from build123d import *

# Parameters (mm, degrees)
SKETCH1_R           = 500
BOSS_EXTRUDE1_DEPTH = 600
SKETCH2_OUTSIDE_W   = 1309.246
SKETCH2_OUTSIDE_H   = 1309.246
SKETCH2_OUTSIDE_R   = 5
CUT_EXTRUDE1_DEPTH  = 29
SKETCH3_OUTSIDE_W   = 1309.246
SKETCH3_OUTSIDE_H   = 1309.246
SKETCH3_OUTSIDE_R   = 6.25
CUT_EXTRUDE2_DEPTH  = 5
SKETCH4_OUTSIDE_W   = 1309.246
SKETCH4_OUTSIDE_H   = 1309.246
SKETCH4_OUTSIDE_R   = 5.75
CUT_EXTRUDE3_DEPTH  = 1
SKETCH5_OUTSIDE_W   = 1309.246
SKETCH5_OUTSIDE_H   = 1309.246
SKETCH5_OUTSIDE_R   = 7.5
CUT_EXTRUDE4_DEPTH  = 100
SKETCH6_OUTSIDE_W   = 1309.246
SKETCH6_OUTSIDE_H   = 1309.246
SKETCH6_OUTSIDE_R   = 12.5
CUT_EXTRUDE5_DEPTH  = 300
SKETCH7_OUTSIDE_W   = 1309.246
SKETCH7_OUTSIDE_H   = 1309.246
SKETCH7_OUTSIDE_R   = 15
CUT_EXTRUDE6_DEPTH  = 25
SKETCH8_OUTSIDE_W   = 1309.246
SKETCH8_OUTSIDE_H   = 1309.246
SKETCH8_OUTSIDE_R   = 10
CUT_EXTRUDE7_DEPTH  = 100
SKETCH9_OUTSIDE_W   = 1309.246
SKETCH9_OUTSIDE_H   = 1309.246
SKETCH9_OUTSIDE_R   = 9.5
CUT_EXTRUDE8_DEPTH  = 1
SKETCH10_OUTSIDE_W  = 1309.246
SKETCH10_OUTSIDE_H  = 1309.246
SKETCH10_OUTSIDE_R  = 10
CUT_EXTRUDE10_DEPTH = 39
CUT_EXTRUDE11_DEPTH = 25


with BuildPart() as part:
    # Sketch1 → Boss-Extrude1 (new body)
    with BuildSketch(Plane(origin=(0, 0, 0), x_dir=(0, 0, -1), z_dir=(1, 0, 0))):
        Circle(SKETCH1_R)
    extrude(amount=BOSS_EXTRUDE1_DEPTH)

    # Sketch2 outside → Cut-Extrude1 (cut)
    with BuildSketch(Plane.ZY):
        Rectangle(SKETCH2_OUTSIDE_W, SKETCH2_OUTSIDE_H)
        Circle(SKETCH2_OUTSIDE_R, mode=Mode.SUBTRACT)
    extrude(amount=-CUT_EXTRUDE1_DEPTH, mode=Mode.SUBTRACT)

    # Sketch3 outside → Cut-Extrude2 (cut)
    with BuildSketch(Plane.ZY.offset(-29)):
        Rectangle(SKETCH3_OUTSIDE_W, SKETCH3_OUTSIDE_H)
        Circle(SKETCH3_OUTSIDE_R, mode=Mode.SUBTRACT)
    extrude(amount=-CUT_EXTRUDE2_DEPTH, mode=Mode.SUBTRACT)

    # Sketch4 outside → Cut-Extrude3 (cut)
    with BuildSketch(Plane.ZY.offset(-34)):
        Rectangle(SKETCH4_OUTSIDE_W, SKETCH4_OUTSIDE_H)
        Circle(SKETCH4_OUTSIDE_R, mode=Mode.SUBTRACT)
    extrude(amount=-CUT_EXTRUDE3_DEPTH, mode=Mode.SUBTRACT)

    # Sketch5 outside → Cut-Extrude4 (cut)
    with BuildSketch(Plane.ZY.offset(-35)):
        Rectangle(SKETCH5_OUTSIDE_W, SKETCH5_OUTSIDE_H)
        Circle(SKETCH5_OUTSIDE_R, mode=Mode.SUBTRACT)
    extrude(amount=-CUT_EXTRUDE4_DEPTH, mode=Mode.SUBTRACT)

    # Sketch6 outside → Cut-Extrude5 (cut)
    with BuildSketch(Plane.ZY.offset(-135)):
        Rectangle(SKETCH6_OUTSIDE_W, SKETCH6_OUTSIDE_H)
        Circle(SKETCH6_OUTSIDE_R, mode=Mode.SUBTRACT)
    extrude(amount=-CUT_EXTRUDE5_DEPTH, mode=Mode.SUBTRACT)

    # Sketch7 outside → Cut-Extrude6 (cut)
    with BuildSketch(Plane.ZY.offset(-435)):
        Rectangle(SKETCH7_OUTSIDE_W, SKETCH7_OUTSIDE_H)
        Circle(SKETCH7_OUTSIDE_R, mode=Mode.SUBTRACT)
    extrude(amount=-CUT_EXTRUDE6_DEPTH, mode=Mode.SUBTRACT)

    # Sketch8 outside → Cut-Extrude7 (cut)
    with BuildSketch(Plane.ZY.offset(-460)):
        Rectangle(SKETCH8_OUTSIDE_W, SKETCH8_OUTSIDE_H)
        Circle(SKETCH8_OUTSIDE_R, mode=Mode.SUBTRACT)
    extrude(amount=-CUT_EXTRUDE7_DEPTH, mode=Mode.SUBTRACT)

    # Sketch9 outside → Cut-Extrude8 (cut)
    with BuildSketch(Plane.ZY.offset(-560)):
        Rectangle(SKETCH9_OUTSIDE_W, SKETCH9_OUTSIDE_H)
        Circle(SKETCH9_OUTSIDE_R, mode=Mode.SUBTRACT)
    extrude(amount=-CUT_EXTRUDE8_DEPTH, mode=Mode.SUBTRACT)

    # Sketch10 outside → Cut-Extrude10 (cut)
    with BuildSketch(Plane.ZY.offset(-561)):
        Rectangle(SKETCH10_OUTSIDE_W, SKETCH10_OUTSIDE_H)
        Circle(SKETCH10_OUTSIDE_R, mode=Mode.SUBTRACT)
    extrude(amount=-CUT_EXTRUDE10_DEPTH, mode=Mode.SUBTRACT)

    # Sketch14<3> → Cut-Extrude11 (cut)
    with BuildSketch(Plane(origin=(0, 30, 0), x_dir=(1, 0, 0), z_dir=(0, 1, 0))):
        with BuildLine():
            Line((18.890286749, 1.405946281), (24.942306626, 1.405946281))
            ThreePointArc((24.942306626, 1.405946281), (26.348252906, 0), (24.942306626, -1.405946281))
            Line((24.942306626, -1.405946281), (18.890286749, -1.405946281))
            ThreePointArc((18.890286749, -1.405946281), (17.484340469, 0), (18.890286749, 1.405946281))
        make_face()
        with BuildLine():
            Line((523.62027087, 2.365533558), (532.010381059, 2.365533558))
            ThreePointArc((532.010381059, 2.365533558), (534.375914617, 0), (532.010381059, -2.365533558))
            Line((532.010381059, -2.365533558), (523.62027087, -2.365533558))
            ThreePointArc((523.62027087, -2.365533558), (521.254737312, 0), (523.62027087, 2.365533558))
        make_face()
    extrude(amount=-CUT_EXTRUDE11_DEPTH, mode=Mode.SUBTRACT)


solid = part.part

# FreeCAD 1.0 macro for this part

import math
import FreeCAD as App
import Part
import Sketcher
from FreeCAD import Vector
Q = App.Units.Quantity

doc = App.newDocument("Part")
params = doc.addObject("Spreadsheet::Sheet", "Params")
for row, (alias, value) in enumerate([
    ("sketch1_diameter", "1000 mm"),
    ("pad1_length", "600 mm"),
    ("sketch2_diameter", "10 mm"),
    ("pocket1_length", "29 mm"),
    ("sketch3_diameter", "12.5 mm"),
    ("pocket2_length", "5 mm"),
    ("sketch4_diameter", "11.5 mm"),
    ("pocket3_length", "1 mm"),
    ("sketch5_diameter", "15 mm"),
    ("pocket4_length", "100 mm"),
    ("sketch6_diameter", "25 mm"),
    ("pocket5_length", "300 mm"),
    ("sketch7_diameter", "30 mm"),
    ("pocket6_length", "25 mm"),
    ("sketch8_diameter", "20 mm"),
    ("pocket7_length", "100 mm"),
    ("sketch9_diameter", "19 mm"),
    ("pocket8_length", "1 mm"),
    ("sketch10_diameter", "20 mm"),
    ("pocket9_length", "39 mm"),
    ("pocket10_length", "25 mm"),
], start=1):
    params.set(f"A{row}", alias)
    params.set(f"B{row}", "=" + value)
    params.setAlias(f"B{row}", alias)

body = doc.addObject("PartDesign::Body", "Body")

sketch1 = doc.addObject("Sketcher::SketchObject", "Sketch")
body.addObject(sketch1)
sketch1.AttachmentSupport = (doc.YZ_Plane, [""])
sketch1.MapMode = "FlatFace"
sketch1.addGeometry(Part.Circle(Vector(0, 0, 0), Vector(0, 0, 1), 500), False)
sketch1.addConstraint([
    Sketcher.Constraint("Coincident", 0, 3, -1, 1),
    Sketcher.Constraint("Diameter", 0, Q("1000 mm")),
])
sketch1.setExpression("Constraints[1]", "Params.sketch1_diameter")
pad1 = doc.addObject("PartDesign::Pad", "Pad")
body.addObject(pad1)
pad1.Profile = sketch1
pad1.setExpression("Length", "Params.pad1_length")

sketch2 = doc.addObject("Sketcher::SketchObject", "Sketch001")
body.addObject(sketch2)
sketch2.AttachmentSupport = (doc.YZ_Plane, [""])
sketch2.MapMode = "FlatFace"
sketch2.addGeometry([
    Part.LineSegment(Vector(655, -655, 0), Vector(-655, -655, 0)),
    Part.LineSegment(Vector(-655, -655, 0), Vector(-655, 655, 0)),
    Part.LineSegment(Vector(-655, 655, 0), Vector(655, 655, 0)),
    Part.LineSegment(Vector(655, 655, 0), Vector(655, -655, 0)),
    Part.Circle(Vector(0, 0, 0), Vector(0, 0, 1), 5),
], False)
sketch2.addConstraint([
    Sketcher.Constraint("Coincident", 0, 2, 1, 1),
    Sketcher.Constraint("Coincident", 1, 2, 2, 1),
    Sketcher.Constraint("Coincident", 2, 2, 3, 1),
    Sketcher.Constraint("Coincident", 3, 2, 0, 1),
    Sketcher.Constraint("Horizontal", 0),
    Sketcher.Constraint("Vertical", 1),
    Sketcher.Constraint("Horizontal", 2),
    Sketcher.Constraint("Vertical", 3),
    Sketcher.Constraint("Coincident", 4, 3, -1, 1),
    Sketcher.Constraint("Symmetric", 0, 2, 2, 2, -1, 1),
    Sketcher.Constraint("Equal", 2, 1),
    Sketcher.Constraint("Diameter", 4, Q("10 mm")),
    Sketcher.Constraint("DistanceX", 0, 2, 0, 1, Q("1309.246 mm")),
])
sketch2.setExpression("Constraints[11]", "Params.sketch2_diameter")
pocket1 = doc.addObject("PartDesign::Pocket", "Pocket")
body.addObject(pocket1)
pocket1.Profile = sketch2
pocket1.setExpression("Length", "Params.pocket1_length")
pocket1.Reversed = True

sketch3 = doc.addObject("Sketcher::SketchObject", "Sketch002")
body.addObject(sketch3)
sketch3.AttachmentSupport = (doc.YZ_Plane, [""])
sketch3.MapMode = "FlatFace"
sketch3.AttachmentOffset = App.Placement(Vector(0, 0, 29), App.Rotation())
sketch3.addGeometry([
    Part.LineSegment(Vector(655, -655, 0), Vector(-655, -655, 0)),
    Part.LineSegment(Vector(-655, -655, 0), Vector(-655, 655, 0)),
    Part.LineSegment(Vector(-655, 655, 0), Vector(655, 655, 0)),
    Part.LineSegment(Vector(655, 655, 0), Vector(655, -655, 0)),
    Part.Circle(Vector(0, 0, 0), Vector(0, 0, 1), 6),
], False)
sketch3.addConstraint([
    Sketcher.Constraint("Coincident", 0, 2, 1, 1),
    Sketcher.Constraint("Coincident", 1, 2, 2, 1),
    Sketcher.Constraint("Coincident", 2, 2, 3, 1),
    Sketcher.Constraint("Coincident", 3, 2, 0, 1),
    Sketcher.Constraint("Horizontal", 0),
    Sketcher.Constraint("Vertical", 1),
    Sketcher.Constraint("Horizontal", 2),
    Sketcher.Constraint("Vertical", 3),
    Sketcher.Constraint("Coincident", 4, 3, -1, 1),
    Sketcher.Constraint("Symmetric", 0, 2, 2, 2, -1, 1),
    Sketcher.Constraint("Equal", 2, 1),
    Sketcher.Constraint("Diameter", 4, Q("12.5 mm")),
    Sketcher.Constraint("DistanceX", 0, 2, 0, 1, Q("1309.246 mm")),
])
sketch3.setExpression("Constraints[11]", "Params.sketch3_diameter")
pocket2 = doc.addObject("PartDesign::Pocket", "Pocket001")
body.addObject(pocket2)
pocket2.Profile = sketch3
pocket2.setExpression("Length", "Params.pocket2_length")
pocket2.Reversed = True

sketch4 = doc.addObject("Sketcher::SketchObject", "Sketch003")
body.addObject(sketch4)
sketch4.AttachmentSupport = (doc.YZ_Plane, [""])
sketch4.MapMode = "FlatFace"
sketch4.AttachmentOffset = App.Placement(Vector(0, 0, 34), App.Rotation())
sketch4.addGeometry([
    Part.LineSegment(Vector(655, -655, 0), Vector(-655, -655, 0)),
    Part.LineSegment(Vector(-655, -655, 0), Vector(-655, 655, 0)),
    Part.LineSegment(Vector(-655, 655, 0), Vector(655, 655, 0)),
    Part.LineSegment(Vector(655, 655, 0), Vector(655, -655, 0)),
    Part.Circle(Vector(0, 0, 0), Vector(0, 0, 1), 6),
], False)
sketch4.addConstraint([
    Sketcher.Constraint("Coincident", 0, 2, 1, 1),
    Sketcher.Constraint("Coincident", 1, 2, 2, 1),
    Sketcher.Constraint("Coincident", 2, 2, 3, 1),
    Sketcher.Constraint("Coincident", 3, 2, 0, 1),
    Sketcher.Constraint("Horizontal", 0),
    Sketcher.Constraint("Vertical", 1),
    Sketcher.Constraint("Horizontal", 2),
    Sketcher.Constraint("Vertical", 3),
    Sketcher.Constraint("Coincident", 4, 3, -1, 1),
    Sketcher.Constraint("Symmetric", 0, 2, 2, 2, -1, 1),
    Sketcher.Constraint("Equal", 2, 1),
    Sketcher.Constraint("Diameter", 4, Q("11.5 mm")),
    Sketcher.Constraint("DistanceX", 0, 2, 0, 1, Q("1309.246 mm")),
])
sketch4.setExpression("Constraints[11]", "Params.sketch4_diameter")
pocket3 = doc.addObject("PartDesign::Pocket", "Pocket002")
body.addObject(pocket3)
pocket3.Profile = sketch4
pocket3.setExpression("Length", "Params.pocket3_length")
pocket3.Reversed = True

sketch5 = doc.addObject("Sketcher::SketchObject", "Sketch004")
body.addObject(sketch5)
sketch5.AttachmentSupport = (doc.YZ_Plane, [""])
sketch5.MapMode = "FlatFace"
sketch5.AttachmentOffset = App.Placement(Vector(0, 0, 35), App.Rotation())
sketch5.addGeometry([
    Part.LineSegment(Vector(655, -655, 0), Vector(-655, -655, 0)),
    Part.LineSegment(Vector(-655, -655, 0), Vector(-655, 655, 0)),
    Part.LineSegment(Vector(-655, 655, 0), Vector(655, 655, 0)),
    Part.LineSegment(Vector(655, 655, 0), Vector(655, -655, 0)),
    Part.Circle(Vector(0, 0, 0), Vector(0, 0, 1), 8),
], False)
sketch5.addConstraint([
    Sketcher.Constraint("Coincident", 0, 2, 1, 1),
    Sketcher.Constraint("Coincident", 1, 2, 2, 1),
    Sketcher.Constraint("Coincident", 2, 2, 3, 1),
    Sketcher.Constraint("Coincident", 3, 2, 0, 1),
    Sketcher.Constraint("Horizontal", 0),
    Sketcher.Constraint("Vertical", 1),
    Sketcher.Constraint("Horizontal", 2),
    Sketcher.Constraint("Vertical", 3),
    Sketcher.Constraint("Coincident", 4, 3, -1, 1),
    Sketcher.Constraint("Symmetric", 0, 2, 2, 2, -1, 1),
    Sketcher.Constraint("Equal", 2, 1),
    Sketcher.Constraint("Diameter", 4, Q("15 mm")),
    Sketcher.Constraint("DistanceX", 0, 2, 0, 1, Q("1309.246 mm")),
])
sketch5.setExpression("Constraints[11]", "Params.sketch5_diameter")
pocket4 = doc.addObject("PartDesign::Pocket", "Pocket003")
body.addObject(pocket4)
pocket4.Profile = sketch5
pocket4.setExpression("Length", "Params.pocket4_length")
pocket4.Reversed = True

sketch6 = doc.addObject("Sketcher::SketchObject", "Sketch005")
body.addObject(sketch6)
sketch6.AttachmentSupport = (doc.YZ_Plane, [""])
sketch6.MapMode = "FlatFace"
sketch6.AttachmentOffset = App.Placement(Vector(0, 0, 135), App.Rotation())
sketch6.addGeometry([
    Part.LineSegment(Vector(655, -655, 0), Vector(-655, -655, 0)),
    Part.LineSegment(Vector(-655, -655, 0), Vector(-655, 655, 0)),
    Part.LineSegment(Vector(-655, 655, 0), Vector(655, 655, 0)),
    Part.LineSegment(Vector(655, 655, 0), Vector(655, -655, 0)),
    Part.Circle(Vector(0, 0, 0), Vector(0, 0, 1), 12),
], False)
sketch6.addConstraint([
    Sketcher.Constraint("Coincident", 0, 2, 1, 1),
    Sketcher.Constraint("Coincident", 1, 2, 2, 1),
    Sketcher.Constraint("Coincident", 2, 2, 3, 1),
    Sketcher.Constraint("Coincident", 3, 2, 0, 1),
    Sketcher.Constraint("Horizontal", 0),
    Sketcher.Constraint("Vertical", 1),
    Sketcher.Constraint("Horizontal", 2),
    Sketcher.Constraint("Vertical", 3),
    Sketcher.Constraint("Coincident", 4, 3, -1, 1),
    Sketcher.Constraint("Symmetric", 0, 2, 2, 2, -1, 1),
    Sketcher.Constraint("Equal", 2, 1),
    Sketcher.Constraint("Diameter", 4, Q("25 mm")),
    Sketcher.Constraint("DistanceX", 0, 2, 0, 1, Q("1309.246 mm")),
])
sketch6.setExpression("Constraints[11]", "Params.sketch6_diameter")
pocket5 = doc.addObject("PartDesign::Pocket", "Pocket004")
body.addObject(pocket5)
pocket5.Profile = sketch6
pocket5.setExpression("Length", "Params.pocket5_length")
pocket5.Reversed = True

sketch7 = doc.addObject("Sketcher::SketchObject", "Sketch006")
body.addObject(sketch7)
sketch7.AttachmentSupport = (doc.YZ_Plane, [""])
sketch7.MapMode = "FlatFace"
sketch7.AttachmentOffset = App.Placement(Vector(0, 0, 435), App.Rotation())
sketch7.addGeometry([
    Part.LineSegment(Vector(655, -655, 0), Vector(-655, -655, 0)),
    Part.LineSegment(Vector(-655, -655, 0), Vector(-655, 655, 0)),
    Part.LineSegment(Vector(-655, 655, 0), Vector(655, 655, 0)),
    Part.LineSegment(Vector(655, 655, 0), Vector(655, -655, 0)),
    Part.Circle(Vector(0, 0, 0), Vector(0, 0, 1), 15),
], False)
sketch7.addConstraint([
    Sketcher.Constraint("Coincident", 0, 2, 1, 1),
    Sketcher.Constraint("Coincident", 1, 2, 2, 1),
    Sketcher.Constraint("Coincident", 2, 2, 3, 1),
    Sketcher.Constraint("Coincident", 3, 2, 0, 1),
    Sketcher.Constraint("Horizontal", 0),
    Sketcher.Constraint("Vertical", 1),
    Sketcher.Constraint("Horizontal", 2),
    Sketcher.Constraint("Vertical", 3),
    Sketcher.Constraint("Coincident", 4, 3, -1, 1),
    Sketcher.Constraint("Symmetric", 0, 2, 2, 2, -1, 1),
    Sketcher.Constraint("Equal", 2, 1),
    Sketcher.Constraint("Diameter", 4, Q("30 mm")),
    Sketcher.Constraint("DistanceX", 0, 2, 0, 1, Q("1309.246 mm")),
])
sketch7.setExpression("Constraints[11]", "Params.sketch7_diameter")
pocket6 = doc.addObject("PartDesign::Pocket", "Pocket005")
body.addObject(pocket6)
pocket6.Profile = sketch7
pocket6.setExpression("Length", "Params.pocket6_length")
pocket6.Reversed = True

sketch8 = doc.addObject("Sketcher::SketchObject", "Sketch007")
body.addObject(sketch8)
sketch8.AttachmentSupport = (doc.YZ_Plane, [""])
sketch8.MapMode = "FlatFace"
sketch8.AttachmentOffset = App.Placement(Vector(0, 0, 460), App.Rotation())
sketch8.addGeometry([
    Part.LineSegment(Vector(655, -655, 0), Vector(-655, -655, 0)),
    Part.LineSegment(Vector(-655, -655, 0), Vector(-655, 655, 0)),
    Part.LineSegment(Vector(-655, 655, 0), Vector(655, 655, 0)),
    Part.LineSegment(Vector(655, 655, 0), Vector(655, -655, 0)),
    Part.Circle(Vector(0, 0, 0), Vector(0, 0, 1), 10),
], False)
sketch8.addConstraint([
    Sketcher.Constraint("Coincident", 0, 2, 1, 1),
    Sketcher.Constraint("Coincident", 1, 2, 2, 1),
    Sketcher.Constraint("Coincident", 2, 2, 3, 1),
    Sketcher.Constraint("Coincident", 3, 2, 0, 1),
    Sketcher.Constraint("Horizontal", 0),
    Sketcher.Constraint("Vertical", 1),
    Sketcher.Constraint("Horizontal", 2),
    Sketcher.Constraint("Vertical", 3),
    Sketcher.Constraint("Coincident", 4, 3, -1, 1),
    Sketcher.Constraint("Symmetric", 0, 2, 2, 2, -1, 1),
    Sketcher.Constraint("Equal", 2, 1),
    Sketcher.Constraint("Diameter", 4, Q("20 mm")),
    Sketcher.Constraint("DistanceX", 0, 2, 0, 1, Q("1309.246 mm")),
])
sketch8.setExpression("Constraints[11]", "Params.sketch8_diameter")
pocket7 = doc.addObject("PartDesign::Pocket", "Pocket006")
body.addObject(pocket7)
pocket7.Profile = sketch8
pocket7.setExpression("Length", "Params.pocket7_length")
pocket7.Reversed = True

sketch9 = doc.addObject("Sketcher::SketchObject", "Sketch008")
body.addObject(sketch9)
sketch9.AttachmentSupport = (doc.YZ_Plane, [""])
sketch9.MapMode = "FlatFace"
sketch9.AttachmentOffset = App.Placement(Vector(0, 0, 560), App.Rotation())
sketch9.addGeometry([
    Part.LineSegment(Vector(655, -655, 0), Vector(-655, -655, 0)),
    Part.LineSegment(Vector(-655, -655, 0), Vector(-655, 655, 0)),
    Part.LineSegment(Vector(-655, 655, 0), Vector(655, 655, 0)),
    Part.LineSegment(Vector(655, 655, 0), Vector(655, -655, 0)),
    Part.Circle(Vector(0, 0, 0), Vector(0, 0, 1), 10),
], False)
sketch9.addConstraint([
    Sketcher.Constraint("Coincident", 0, 2, 1, 1),
    Sketcher.Constraint("Coincident", 1, 2, 2, 1),
    Sketcher.Constraint("Coincident", 2, 2, 3, 1),
    Sketcher.Constraint("Coincident", 3, 2, 0, 1),
    Sketcher.Constraint("Horizontal", 0),
    Sketcher.Constraint("Vertical", 1),
    Sketcher.Constraint("Horizontal", 2),
    Sketcher.Constraint("Vertical", 3),
    Sketcher.Constraint("Coincident", 4, 3, -1, 1),
    Sketcher.Constraint("Symmetric", 0, 2, 2, 2, -1, 1),
    Sketcher.Constraint("Equal", 2, 1),
    Sketcher.Constraint("Diameter", 4, Q("19 mm")),
    Sketcher.Constraint("DistanceX", 0, 2, 0, 1, Q("1309.246 mm")),
])
sketch9.setExpression("Constraints[11]", "Params.sketch9_diameter")
pocket8 = doc.addObject("PartDesign::Pocket", "Pocket007")
body.addObject(pocket8)
pocket8.Profile = sketch9
pocket8.setExpression("Length", "Params.pocket8_length")
pocket8.Reversed = True

sketch10 = doc.addObject("Sketcher::SketchObject", "Sketch009")
body.addObject(sketch10)
sketch10.AttachmentSupport = (doc.YZ_Plane, [""])
sketch10.MapMode = "FlatFace"
sketch10.AttachmentOffset = App.Placement(Vector(0, 0, 561), App.Rotation())
sketch10.addGeometry([
    Part.LineSegment(Vector(655, -655, 0), Vector(-655, -655, 0)),
    Part.LineSegment(Vector(-655, -655, 0), Vector(-655, 655, 0)),
    Part.LineSegment(Vector(-655, 655, 0), Vector(655, 655, 0)),
    Part.LineSegment(Vector(655, 655, 0), Vector(655, -655, 0)),
    Part.Circle(Vector(0, 0, 0), Vector(0, 0, 1), 10),
], False)
sketch10.addConstraint([
    Sketcher.Constraint("Coincident", 0, 2, 1, 1),
    Sketcher.Constraint("Coincident", 1, 2, 2, 1),
    Sketcher.Constraint("Coincident", 2, 2, 3, 1),
    Sketcher.Constraint("Coincident", 3, 2, 0, 1),
    Sketcher.Constraint("Horizontal", 0),
    Sketcher.Constraint("Vertical", 1),
    Sketcher.Constraint("Horizontal", 2),
    Sketcher.Constraint("Vertical", 3),
    Sketcher.Constraint("Coincident", 4, 3, -1, 1),
    Sketcher.Constraint("Symmetric", 0, 2, 2, 2, -1, 1),
    Sketcher.Constraint("Equal", 2, 1),
    Sketcher.Constraint("Diameter", 4, Q("20 mm")),
    Sketcher.Constraint("DistanceX", 0, 2, 0, 1, Q("1309.246 mm")),
])
sketch10.setExpression("Constraints[11]", "Params.sketch10_diameter")
pocket9 = doc.addObject("PartDesign::Pocket", "Pocket008")
body.addObject(pocket9)
pocket9.Profile = sketch10
pocket9.setExpression("Length", "Params.pocket9_length")
pocket9.Reversed = True

sketch11 = doc.addObject("Sketcher::SketchObject", "Sketch010")
body.addObject(sketch11)
sketch11.AttachmentSupport = (doc.XZ_Plane, [""])
sketch11.MapMode = "FlatFace"
sketch11.AttachmentOffset = App.Placement(Vector(0, 0, -30), App.Rotation())
sketch11.addGeometry([
    Part.LineSegment(Vector(24.9, -1.4, 0), Vector(18.9, -1.4, 0)),
    Part.ArcOfCircle(Part.Circle(Vector(18.9, 0, 0), Vector(0, 0, 1), 1.4), math.radians(90), math.radians(270)),
    Part.LineSegment(Vector(18.9, 1.4, 0), Vector(24.9, 1.4, 0)),
    Part.ArcOfCircle(Part.Circle(Vector(24.9, 0, 0), Vector(0, 0, 1), 1.4), math.radians(-90), math.radians(90)),
    Part.LineSegment(Vector(532, -2.4, 0), Vector(523.6, -2.4, 0)),
    Part.ArcOfCircle(Part.Circle(Vector(523.6, 0, 0), Vector(0, 0, 1), 2.4), math.radians(90), math.radians(270)),
    Part.LineSegment(Vector(523.6, 2.4, 0), Vector(532, 2.4, 0)),
    Part.ArcOfCircle(Part.Circle(Vector(532, 0, 0), Vector(0, 0, 1), 2.4), math.radians(-90), math.radians(90)),
], False)
sketch11.addConstraint([
    Sketcher.Constraint("Tangent", 0, 2, 1, 2),
    Sketcher.Constraint("Tangent", 1, 1, 2, 1),
    Sketcher.Constraint("Tangent", 2, 2, 3, 2),
    Sketcher.Constraint("Tangent", 3, 1, 0, 1),
    Sketcher.Constraint("Tangent", 4, 2, 5, 2),
    Sketcher.Constraint("Tangent", 5, 1, 6, 1),
    Sketcher.Constraint("Tangent", 6, 2, 7, 2),
    Sketcher.Constraint("Tangent", 7, 1, 4, 1),
    Sketcher.Constraint("Horizontal", 0),
    Sketcher.Constraint("Horizontal", 2),
    Sketcher.Constraint("Horizontal", 4),
    Sketcher.Constraint("Horizontal", 6),
    Sketcher.Constraint("PointOnObject", 1, 3, -1),
    Sketcher.Constraint("PointOnObject", 5, 3, -1),
    Sketcher.Constraint("Radius", 1, Q("1.405946 mm")),
    Sketcher.Constraint("Radius", 5, Q("2.365534 mm")),
    Sketcher.Constraint("DistanceX", 0, 2, 0, 1, Q("6.05202 mm")),
    Sketcher.Constraint("DistanceX", 4, 2, 4, 1, Q("8.39011 mm")),
    Sketcher.Constraint("DistanceX", -1, 1, 5, 3, Q("523.620271 mm")),
    Sketcher.Constraint("DistanceX", -1, 1, 1, 3, Q("18.890287 mm")),
])
pocket10 = doc.addObject("PartDesign::Pocket", "Pocket009")
body.addObject(pocket10)
pocket10.Profile = sketch11
pocket10.setExpression("Length", "Params.pocket10_length")
pocket10.Reversed = True

doc.recompute()
